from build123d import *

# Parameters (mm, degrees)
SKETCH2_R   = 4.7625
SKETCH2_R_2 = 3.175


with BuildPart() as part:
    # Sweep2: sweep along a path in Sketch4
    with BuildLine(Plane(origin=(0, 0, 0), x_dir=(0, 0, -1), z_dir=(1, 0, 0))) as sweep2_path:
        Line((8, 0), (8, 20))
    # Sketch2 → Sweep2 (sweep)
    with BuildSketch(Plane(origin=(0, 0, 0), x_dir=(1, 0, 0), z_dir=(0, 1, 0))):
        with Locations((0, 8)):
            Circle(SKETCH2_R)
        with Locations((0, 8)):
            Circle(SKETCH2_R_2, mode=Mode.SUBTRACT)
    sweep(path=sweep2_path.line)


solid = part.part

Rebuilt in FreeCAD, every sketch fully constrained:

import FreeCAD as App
import Part
import Sketcher
Q = App.Units.Quantity

doc = App.newDocument("Part")
body = doc.addObject("PartDesign::Body", "Body")

# Sketch on XZ plane
sketch1 = body.newObject("Sketcher::SketchObject", "Sketch")
sketch1.AttachmentSupport = (doc.getObject("XZ_Plane"), [""])
sketch1.MapMode = "FlatFace"
sketch1.addGeometry([
    Part.Circle(App.Vector(0, -8, 0), App.Vector(0, 0, 1), 4.8),
    Part.Circle(App.Vector(0, -8, 0), App.Vector(0, 0, 1), 3.2),
], False)
sketch1.addConstraint([
    Sketcher.Constraint("Coincident", 1, 3, 0, 3),
    Sketcher.Constraint("PointOnObject", 0, 3, -2),
    Sketcher.Constraint("Diameter", 1, Q("0.25 in")),
    Sketcher.Constraint("Diameter", 0, Q("0.375 in")),
    Sketcher.Constraint("DistanceY", 0, 3, -1, 1, 8.0),
])

# Sketch on XY plane
sketch2 = body.newObject("Sketcher::SketchObject", "Sketch001")
sketch2.AttachmentSupport = (doc.getObject("XY_Plane"), [""])
sketch2.MapMode = "FlatFace"
sketch2.AttachmentOffset = App.Placement(App.Vector(0, 0, -8), App.Rotation())
sketch2.addGeometry(Part.LineSegment(App.Vector(0, 0, 0), App.Vector(0, 20, 0)), False)
sketch2.addConstraint([
    Sketcher.Constraint("Vertical", 0),
    Sketcher.Constraint("Coincident", 0, 1, -1, 1),
    Sketcher.Constraint("DistanceY", 0, 1, 0, 2, 20.0),
])
doc.recompute()

additivepipe = body.newObject("PartDesign::AdditivePipe", "AdditivePipe")
additivepipe.Profile = sketch1
additivepipe.Spine = (sketch2, ["Edge1"])

doc.recompute()
